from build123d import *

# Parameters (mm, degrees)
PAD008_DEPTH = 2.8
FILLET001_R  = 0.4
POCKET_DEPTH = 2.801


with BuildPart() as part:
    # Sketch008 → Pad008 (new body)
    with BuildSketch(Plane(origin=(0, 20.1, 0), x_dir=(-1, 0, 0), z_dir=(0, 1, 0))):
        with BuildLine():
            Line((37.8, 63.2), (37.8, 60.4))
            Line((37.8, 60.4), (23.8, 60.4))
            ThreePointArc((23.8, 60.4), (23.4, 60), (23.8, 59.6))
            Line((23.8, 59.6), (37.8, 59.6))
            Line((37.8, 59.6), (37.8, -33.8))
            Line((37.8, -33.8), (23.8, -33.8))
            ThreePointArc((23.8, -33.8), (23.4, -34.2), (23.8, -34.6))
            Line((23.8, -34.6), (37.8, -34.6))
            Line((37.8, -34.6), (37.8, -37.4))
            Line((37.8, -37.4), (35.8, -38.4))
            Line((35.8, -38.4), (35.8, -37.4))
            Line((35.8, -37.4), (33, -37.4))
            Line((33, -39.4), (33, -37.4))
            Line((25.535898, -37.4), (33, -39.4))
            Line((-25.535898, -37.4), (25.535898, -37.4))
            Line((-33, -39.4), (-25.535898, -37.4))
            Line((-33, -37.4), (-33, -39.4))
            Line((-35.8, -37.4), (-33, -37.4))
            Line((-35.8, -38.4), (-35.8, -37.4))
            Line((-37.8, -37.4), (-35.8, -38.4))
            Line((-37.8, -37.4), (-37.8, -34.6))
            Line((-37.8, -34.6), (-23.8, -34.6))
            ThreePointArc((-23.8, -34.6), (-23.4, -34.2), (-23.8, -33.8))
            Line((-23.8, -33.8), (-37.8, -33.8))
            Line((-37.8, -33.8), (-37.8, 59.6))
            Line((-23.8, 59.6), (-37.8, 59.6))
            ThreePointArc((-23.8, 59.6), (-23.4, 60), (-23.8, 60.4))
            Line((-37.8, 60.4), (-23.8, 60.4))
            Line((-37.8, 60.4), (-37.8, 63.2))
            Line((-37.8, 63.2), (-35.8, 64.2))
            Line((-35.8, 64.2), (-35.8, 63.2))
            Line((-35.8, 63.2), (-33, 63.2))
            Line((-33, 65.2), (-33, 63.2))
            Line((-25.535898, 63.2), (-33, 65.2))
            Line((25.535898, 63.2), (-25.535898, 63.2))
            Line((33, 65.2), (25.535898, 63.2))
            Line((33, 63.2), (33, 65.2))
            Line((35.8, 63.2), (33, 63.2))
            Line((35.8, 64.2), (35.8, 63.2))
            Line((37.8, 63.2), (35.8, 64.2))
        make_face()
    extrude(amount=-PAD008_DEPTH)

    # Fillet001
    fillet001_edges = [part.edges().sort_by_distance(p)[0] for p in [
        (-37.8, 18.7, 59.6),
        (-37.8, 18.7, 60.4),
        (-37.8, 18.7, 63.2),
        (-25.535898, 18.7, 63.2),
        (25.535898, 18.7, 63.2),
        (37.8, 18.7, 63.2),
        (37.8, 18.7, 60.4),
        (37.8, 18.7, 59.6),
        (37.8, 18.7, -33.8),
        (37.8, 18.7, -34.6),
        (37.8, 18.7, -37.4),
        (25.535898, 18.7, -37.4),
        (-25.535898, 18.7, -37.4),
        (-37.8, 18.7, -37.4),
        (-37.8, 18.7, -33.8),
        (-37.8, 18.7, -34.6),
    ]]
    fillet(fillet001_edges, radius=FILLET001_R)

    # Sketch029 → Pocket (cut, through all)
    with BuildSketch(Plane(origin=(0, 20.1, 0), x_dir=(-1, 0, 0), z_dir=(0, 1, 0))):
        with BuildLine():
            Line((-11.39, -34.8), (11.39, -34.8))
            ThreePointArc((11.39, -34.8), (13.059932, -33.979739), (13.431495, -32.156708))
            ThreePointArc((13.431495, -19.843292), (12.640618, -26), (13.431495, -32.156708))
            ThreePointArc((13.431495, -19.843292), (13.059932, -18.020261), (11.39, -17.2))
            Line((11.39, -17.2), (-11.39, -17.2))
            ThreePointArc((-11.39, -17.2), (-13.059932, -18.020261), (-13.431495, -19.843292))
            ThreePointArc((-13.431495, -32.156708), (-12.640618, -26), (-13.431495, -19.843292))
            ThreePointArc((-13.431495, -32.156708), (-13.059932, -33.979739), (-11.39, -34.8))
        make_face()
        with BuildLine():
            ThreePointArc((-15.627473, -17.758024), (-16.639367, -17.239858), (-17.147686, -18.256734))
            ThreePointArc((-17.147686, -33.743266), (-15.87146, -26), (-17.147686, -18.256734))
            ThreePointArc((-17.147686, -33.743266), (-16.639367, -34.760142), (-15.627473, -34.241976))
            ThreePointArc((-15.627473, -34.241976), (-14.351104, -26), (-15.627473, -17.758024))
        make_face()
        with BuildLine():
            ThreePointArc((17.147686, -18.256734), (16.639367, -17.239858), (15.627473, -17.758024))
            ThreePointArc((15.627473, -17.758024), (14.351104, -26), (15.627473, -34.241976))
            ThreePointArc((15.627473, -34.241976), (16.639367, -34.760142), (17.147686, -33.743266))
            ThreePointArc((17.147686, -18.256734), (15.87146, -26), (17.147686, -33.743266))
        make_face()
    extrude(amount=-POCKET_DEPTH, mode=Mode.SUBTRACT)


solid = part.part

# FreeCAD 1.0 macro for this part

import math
import FreeCAD as App
import Part
import Sketcher

V = App.Vector
Q = App.Units.Quantity


def edges_at(feature, points):
    """Names of the edges that pass closest to the given points."""
    edges = feature.Shape.Edges
    near = lambda p: min(range(len(edges)), key=lambda i: edges[i].distToShape(Part.Vertex(*p))[0])
    return sorted({f"Edge{near(p) + 1}" for p in points})

doc = App.newDocument("Part")
body = doc.addObject("PartDesign::Body", "Body")

# Sketch on XZ plane
sketch1 = doc.addObject("Sketcher::SketchObject", "Sketch")
body.addObject(sketch1)
sketch1.AttachmentSupport = (doc.XZ_Plane, [""])
sketch1.MapMode = "FlatFace"
sketch1.AttachmentOffset = App.Placement(V(0, 0, -20.1), App.Rotation())
sketch1.addGeometry(Part.LineSegment(V(-37.8, 60.4, 0), V(-37.8, 63.2, 0)), False)
sketch1.addGeometry(Part.LineSegment(V(-37.8, 63.2, 0), V(-35.8, 64.2, 0)), False)
sketch1.addGeometry(Part.LineSegment(V(-35.8, 64.2, 0), V(-35.8, 63.2, 0)), False)
sketch1.addGeometry(Part.LineSegment(V(-35.8, 63.2, 0), V(-33, 63.2, 0)), False)
sketch1.addGeometry(Part.LineSegment(V(-33, 63.2, 0), V(-33, 65.2, 0)), False)
sketch1.addGeometry(Part.LineSegment(V(-33, 65.2, 0), V(-25.54, 63.2, 0)), False)
sketch1.addGeometry(Part.LineSegment(V(-25.54, 63.2, 0), V(25.54, 63.2, 0)), False)
sketch1.addGeometry(Part.LineSegment(V(25.54, 63.2, 0), V(33, 65.2, 0)), False)
sketch1.addGeometry(Part.LineSegment(V(33, 65.2, 0), V(33, 63.2, 0)), False)
sketch1.addGeometry(Part.LineSegment(V(33, 63.2, 0), V(35.8, 63.2, 0)), False)
sketch1.addGeometry(Part.LineSegment(V(35.8, 63.2, 0), V(35.8, 64.2, 0)), False)
sketch1.addGeometry(Part.LineSegment(V(35.8, 64.2, 0), V(37.8, 63.2, 0)), False)
sketch1.addGeometry(Part.LineSegment(V(37.8, 63.2, 0), V(37.8, 60.4, 0)), False)
sketch1.addGeometry(Part.LineSegment(V(37.8, 60.4, 0), V(23.8, 60.4, 0)), False)
sketch1.addGeometry(Part.ArcOfCircle(Part.Circle(V(23.8, 60, 0), V(0, 0, 1), 0.4), math.radians(90), math.radians(270)), False)
sketch1.addGeometry(Part.LineSegment(V(23.8, 59.6, 0), V(37.8, 59.6, 0)), False)
sketch1.addGeometry(Part.LineSegment(V(37.8, 59.6, 0), V(37.8, -33.8, 0)), False)
sketch1.addGeometry(Part.LineSegment(V(37.8, -33.8, 0), V(23.8, -33.8, 0)), False)
sketch1.addGeometry(Part.ArcOfCircle(Part.Circle(V(23.8, -34.2, 0), V(0, 0, 1), 0.4), math.radians(90), math.radians(270)), False)
sketch1.addGeometry(Part.LineSegment(V(23.8, -34.6, 0), V(37.8, -34.6, 0)), False)
sketch1.addGeometry(Part.LineSegment(V(37.8, -34.6, 0), V(37.8, -37.4, 0)), False)
sketch1.addGeometry(Part.LineSegment(V(37.8, -37.4, 0), V(35.8, -38.4, 0)), False)
sketch1.addGeometry(Part.LineSegment(V(35.8, -38.4, 0), V(35.8, -37.4, 0)), False)
sketch1.addGeometry(Part.LineSegment(V(35.8, -37.4, 0), V(33, -37.4, 0)), False)
sketch1.addGeometry(Part.LineSegment(V(33, -37.4, 0), V(33, -39.4, 0)), False)
sketch1.addGeometry(Part.LineSegment(V(33, -39.4, 0), V(25.54, -37.4, 0)), False)
sketch1.addGeometry(Part.LineSegment(V(25.54, -37.4, 0), V(-25.54, -37.4, 0)), False)
sketch1.addGeometry(Part.LineSegment(V(-25.54, -37.4, 0), V(-33, -39.4, 0)), False)
sketch1.addGeometry(Part.LineSegment(V(-33, -39.4, 0), V(-33, -37.4, 0)), False)
sketch1.addGeometry(Part.LineSegment(V(-33, -37.4, 0), V(-35.8, -37.4, 0)), False)
sketch1.addGeometry(Part.LineSegment(V(-35.8, -37.4, 0), V(-35.8, -38.4, 0)), False)
sketch1.addGeometry(Part.LineSegment(V(-35.8, -38.4, 0), V(-37.8, -37.4, 0)), False)
sketch1.addGeometry(Part.LineSegment(V(-37.8, -37.4, 0), V(-37.8, -34.6, 0)), False)
sketch1.addGeometry(Part.LineSegment(V(-37.8, -34.6, 0), V(-23.8, -34.6, 0)), False)
sketch1.addGeometry(Part.ArcOfCircle(Part.Circle(V(-23.8, -34.2, 0), V(0, 0, 1), 0.4), math.radians(-90), math.radians(90)), False)
sketch1.addGeometry(Part.LineSegment(V(-23.8, -33.8, 0), V(-37.8, -33.8, 0)), False)
sketch1.addGeometry(Part.LineSegment(V(-37.8, -33.8, 0), V(-37.8, 59.6, 0)), False)
sketch1.addGeometry(Part.LineSegment(V(-37.8, 59.6, 0), V(-23.8, 59.6, 0)), False)
sketch1.addGeometry(Part.ArcOfCircle(Part.Circle(V(-23.8, 60, 0), V(0, 0, 1), 0.4), math.radians(-90), math.radians(90)), False)
sketch1.addGeometry(Part.LineSegment(V(-23.8, 60.4, 0), V(-37.8, 60.4, 0)), False)
sketch1.addConstraint(Sketcher.Constraint("Coincident", 0, 2, 1, 1))
sketch1.addConstraint(Sketcher.Constraint("Coincident", 1, 2, 2, 1))
sketch1.addConstraint(Sketcher.Constraint("Coincident", 2, 2, 3, 1))
sketch1.addConstraint(Sketcher.Constraint("Coincident", 3, 2, 4, 1))
sketch1.addConstraint(Sketcher.Constraint("Coincident", 4, 2, 5, 1))
sketch1.addConstraint(Sketcher.Constraint("Coincident", 5, 2, 6, 1))
sketch1.addConstraint(Sketcher.Constraint("Coincident", 6, 2, 7, 1))
sketch1.addConstraint(Sketcher.Constraint("Coincident", 7, 2, 8, 1))
sketch1.addConstraint(Sketcher.Constraint("Coincident", 8, 2, 9, 1))
sketch1.addConstraint(Sketcher.Constraint("Coincident", 9, 2, 10, 1))
sketch1.addConstraint(Sketcher.Constraint("Coincident", 10, 2, 11, 1))
sketch1.addConstraint(Sketcher.Constraint("Coincident", 11, 2, 12, 1))
sketch1.addConstraint(Sketcher.Constraint("Coincident", 12, 2, 13, 1))
sketch1.addConstraint(Sketcher.Constraint("Tangent", 13, 2, 14, 1))
sketch1.addConstraint(Sketcher.Constraint("Tangent", 14, 2, 15, 1))
sketch1.addConstraint(Sketcher.Constraint("Coincident", 15, 2, 16, 1))
sketch1.addConstraint(Sketcher.Constraint("Coincident", 16, 2, 17, 1))
sketch1.addConstraint(Sketcher.Constraint("Tangent", 17, 2, 18, 1))
sketch1.addConstraint(Sketcher.Constraint("Tangent", 18, 2, 19, 1))
sketch1.addConstraint(Sketcher.Constraint("Coincident", 19, 2, 20, 1))
sketch1.addConstraint(Sketcher.Constraint("Coincident", 20, 2, 21, 1))
sketch1.addConstraint(Sketcher.Constraint("Coincident", 21, 2, 22, 1))
sketch1.addConstraint(Sketcher.Constraint("Coincident", 22, 2, 23, 1))
sketch1.addConstraint(Sketcher.Constraint("Coincident", 23, 2, 24, 1))
sketch1.addConstraint(Sketcher.Constraint("Coincident", 24, 2, 25, 1))
sketch1.addConstraint(Sketcher.Constraint("Coincident", 25, 2, 26, 1))
sketch1.addConstraint(Sketcher.Constraint("Coincident", 26, 2, 27, 1))
sketch1.addConstraint(Sketcher.Constraint("Coincident", 27, 2, 28, 1))
sketch1.addConstraint(Sketcher.Constraint("Coincident", 28, 2, 29, 1))
sketch1.addConstraint(Sketcher.Constraint("Coincident", 29, 2, 30, 1))
sketch1.addConstraint(Sketcher.Constraint("Coincident", 30, 2, 31, 1))
sketch1.addConstraint(Sketcher.Constraint("Coincident", 31, 2, 32, 1))
sketch1.addConstraint(Sketcher.Constraint("Coincident", 32, 2, 33, 1))
sketch1.addConstraint(Sketcher.Constraint("Tangent", 33, 2, 34, 1))
sketch1.addConstraint(Sketcher.Constraint("Tangent", 34, 2, 35, 1))
sketch1.addConstraint(Sketcher.Constraint("Coincident", 35, 2, 36, 1))
sketch1.addConstraint(Sketcher.Constraint("Coincident", 36, 2, 37, 1))
sketch1.addConstraint(Sketcher.Constraint("Tangent", 37, 2, 38, 1))
sketch1.addConstraint(Sketcher.Constraint("Tangent", 38, 2, 39, 1))
sketch1.addConstraint(Sketcher.Constraint("Coincident", 39, 2, 0, 1))
sketch1.addConstraint(Sketcher.Constraint("Vertical", 0))
sketch1.addConstraint(Sketcher.Constraint("Vertical", 2))
sketch1.addConstraint(Sketcher.Constraint("Horizontal", 3))
sketch1.addConstraint(Sketcher.Constraint("Vertical", 4))
sketch1.addConstraint(Sketcher.Constraint("Horizontal", 6))
sketch1.addConstraint(Sketcher.Constraint("Vertical", 8))
sketch1.addConstraint(Sketcher.Constraint("Horizontal", 9))
sketch1.addConstraint(Sketcher.Constraint("Vertical", 10))
sketch1.addConstraint(Sketcher.Constraint("Vertical", 12))
sketch1.addConstraint(Sketcher.Constraint("Horizontal", 13))
sketch1.addConstraint(Sketcher.Constraint("Horizontal", 15))
sketch1.addConstraint(Sketcher.Constraint("Vertical", 16))
sketch1.addConstraint(Sketcher.Constraint("Horizontal", 17))
sketch1.addConstraint(Sketcher.Constraint("Horizontal", 19))
sketch1.addConstraint(Sketcher.Constraint("Vertical", 20))
sketch1.addConstraint(Sketcher.Constraint("Vertical", 22))
sketch1.addConstraint(Sketcher.Constraint("Horizontal", 23))
sketch1.addConstraint(Sketcher.Constraint("Vertical", 24))
sketch1.addConstraint(Sketcher.Constraint("Horizontal", 26))
sketch1.addConstraint(Sketcher.Constraint("Vertical", 28))
sketch1.addConstraint(Sketcher.Constraint("Horizontal", 29))
sketch1.addConstraint(Sketcher.Constraint("Vertical", 30))
sketch1.addConstraint(Sketcher.Constraint("Vertical", 32))
sketch1.addConstraint(Sketcher.Constraint("Horizontal", 33))
sketch1.addConstraint(Sketcher.Constraint("Horizontal", 35))
sketch1.addConstraint(Sketcher.Constraint("Vertical", 36))
sketch1.addConstraint(Sketcher.Constraint("Horizontal", 37))
sketch1.addConstraint(Sketcher.Constraint("Horizontal", 39))
sketch1.addConstraint(Sketcher.Constraint("Equal", 14, 18))
sketch1.addConstraint(Sketcher.Constraint("Equal", 18, 34))
sketch1.addConstraint(Sketcher.Constraint("Equal", 34, 38))
sketch1.addConstraint(Sketcher.Constraint("Symmetric", 18, 3, 34, 3, -2))
sketch1.addConstraint(Sketcher.Constraint("Symmetric", 14, 3, 38, 3, -2))
sketch1.addConstraint(Sketcher.Constraint("Symmetric", 4, 2, 7, 2, -2))
sketch1.addConstraint(Sketcher.Constraint("Symmetric", 2, 2, 9, 2, -2))
sketch1.addConstraint(Sketcher.Constraint("Symmetric", 0, 2, 11, 2, -2))
sketch1.addConstraint(Sketcher.Constraint("Symmetric", 24, 2, 27, 2, -2))
sketch1.addConstraint(Sketcher.Constraint("Symmetric", 22, 2, 29, 2, -2))
sketch1.addConstraint(Sketcher.Constraint("Symmetric", 20, 2, 31, 2, -2))
sketch1.addConstraint(Sketcher.Constraint("Parallel", 1, 21))
sketch1.addConstraint(Sketcher.Constraint("Parallel", 5, 25))
sketch1.addConstraint(Sketcher.Constraint("Parallel", 7, 27))
sketch1.addConstraint(Sketcher.Constraint("Parallel", 11, 31))
sketch1.addConstraint(Sketcher.Constraint("Horizontal", 0, 2, 2, 2))
sketch1.addConstraint(Sketcher.Constraint("Horizontal", 3, 2, 5, 2))
sketch1.addConstraint(Sketcher.Constraint("Horizontal", 1, 2, 10, 2))
sketch1.addConstraint(Sketcher.Constraint("Horizontal", 20, 2, 22, 2))
sketch1.addConstraint(Sketcher.Constraint("Horizontal", 23, 2, 25, 2))
sketch1.addConstraint(Sketcher.Constraint("Vertical", 14, 3, 18, 3))
sketch1.addConstraint(Sketcher.Constraint("Vertical", 12, 2, 15, 2))
sketch1.addConstraint(Sketcher.Constraint("Vertical", 16, 2, 19, 2))
sketch1.addConstraint(Sketcher.Constraint("Vertical", 10, 2, 21, 2))
sketch1.addConstraint(Sketcher.Constraint("Vertical", 8, 2, 23, 2))
sketch1.addConstraint(Sketcher.Constraint("Vertical", 6, 2, 25, 2))
sketch1.addConstraint(Sketcher.Constraint("Vertical", 5, 2, 26, 2))
sketch1.addConstraint(Sketcher.Constraint("Vertical", 32, 2, 35, 2))
sketch1.addConstraint(Sketcher.Constraint("Equal", 29, 0))
sketch1.addConstraint(Sketcher.Constraint("Equal", 12, 20))
sketch1.addConstraint(Sketcher.Constraint("Radius", 14, 0.4))
sketch1.addConstraint(Sketcher.Constraint("DistanceX", 13, 2, 13, 1, 14.0))
sketch1.addConstraint(Sketcher.Constraint("DistanceY", 2, 2, 2, 1, 1.0))
sketch1.addConstraint(Sketcher.Constraint("DistanceY", 4, 1, 4, 2, 2.0))
sketch1.addConstraint(Sketcher.Constraint("Angle", 5, Q("-14.999999 deg")))
sketch1.addConstraint(Sketcher.Constraint("DistanceX", 3, 1, 3, 2, 2.8))
sketch1.addConstraint(Sketcher.Constraint("DistanceY", 16, 2, 16, 1, 93.4))
sketch1.addConstraint(Sketcher.Constraint("DistanceY", -1, 1, 14, 3, 60.0))
sketch1.addConstraint(Sketcher.Constraint("DistanceX", 3, 2, -1, 1, 33.0))
sketch1.addConstraint(Sketcher.Constraint("DistanceX", 0, 2, 1, 2, 2.0))
pad1 = doc.addObject("PartDesign::Pad", "Pad")
body.addObject(pad1)
pad1.Profile = sketch1
pad1.Length = 2.8
doc.recompute()

fillet = doc.addObject("PartDesign::Fillet", "Fillet")
body.addObject(fillet)
fillet.Base = (pad1, edges_at(pad1, [
    (-37.8, 18.7, 59.6),
    (-37.8, 18.7, 60.4),
    (-37.8, 18.7, 63.2),
    (-25.536, 18.7, 63.2),
    (25.536, 18.7, 63.2),
    (37.8, 18.7, 63.2),
    (37.8, 18.7, 60.4),
    (37.8, 18.7, 59.6),
    (37.8, 18.7, -33.8),
    (37.8, 18.7, -34.6),
    (37.8, 18.7, -37.4),
    (25.536, 18.7, -37.4),
    (-25.536, 18.7, -37.4),
    (-37.8, 18.7, -37.4),
    (-37.8, 18.7, -33.8),
    (-37.8, 18.7, -34.6),
]))
fillet.Radius = 0.4

# Sketch on XZ plane
sketch2 = doc.addObject("Sketcher::SketchObject", "Sketch001")
body.addObject(sketch2)
sketch2.AttachmentSupport = (doc.XZ_Plane, [""])
sketch2.MapMode = "FlatFace"
sketch2.AttachmentOffset = App.Placement(V(0, 0, -20.1), App.Rotation())
sketch2.addGeometry(Part.LineSegment(V(11.4, -34.8, 0), V(-11.4, -34.8, 0)), False)
sketch2.addGeometry(Part.ArcOfCircle(Part.Circle(V(-11.4, -32.7, 0), V(0, 0, 1), 2.1), math.radians(165), math.radians(270)), False)
sketch2.addGeometry(Part.ArcOfCircle(Part.Circle(V(-37, -26, 0), V(0, 0, 1), 24.4), math.radians(-15), math.radians(15)), False)
sketch2.addGeometry(Part.ArcOfCircle(Part.Circle(V(-11.4, -19.3, 0), V(0, 0, 1), 2.1), math.radians(90), math.radians(195)), False)
sketch2.addGeometry(Part.LineSegment(V(-11.4, -17.2, 0), V(11.4, -17.2, 0)), False)
sketch2.addGeometry(Part.ArcOfCircle(Part.Circle(V(11.4, -19.3, 0), V(0, 0, 1), 2.1), math.radians(-15), math.radians(90)), False)
sketch2.addGeometry(Part.ArcOfCircle(Part.Circle(V(37, -26, 0), V(0, 0, 1), 24.4), math.radians(165), math.radians(195)), False)
sketch2.addGeometry(Part.ArcOfCircle(Part.Circle(V(11.4, -32.7, 0), V(0, 0, 1), 2.1), math.radians(-90), math.radians(15)), False)
sketch2.addGeometry(Part.ArcOfCircle(Part.Circle(V(16.4, -18, 0), V(0, 0, 1), 0.8), math.radians(-19), math.radians(162)), False)
sketch2.addGeometry(Part.ArcOfCircle(Part.Circle(V(40, -26, 0), V(0, 0, 1), 24.1), math.radians(161), math.radians(199)), False)
sketch2.addGeometry(Part.ArcOfCircle(Part.Circle(V(16.4, -34, 0), V(0, 0, 1), 0.8), math.radians(-162), math.radians(19)), False)
sketch2.addGeometry(Part.ArcOfCircle(Part.Circle(V(41.6, -26, 0), V(0, 0, 1), 27.2), math.radians(162), math.radians(198)), False)
sketch2.addGeometry(Part.ArcOfCircle(Part.Circle(V(-16.4, -18, 0), V(0, 0, 1), 0.8), math.radians(18), math.radians(199)), False)
sketch2.addGeometry(Part.ArcOfCircle(Part.Circle(V(-41.6, -26, 0), V(0, 0, 1), 27.2), math.radians(-18), math.radians(18)), False)
sketch2.addGeometry(Part.ArcOfCircle(Part.Circle(V(-16.4, -34, 0), V(0, 0, 1), 0.8), math.radians(161), math.radians(342)), False)
sketch2.addGeometry(Part.ArcOfCircle(Part.Circle(V(-40, -26, 0), V(0, 0, 1), 24.1), math.radians(-19), math.radians(19)), False)
sketch2.addConstraint(Sketcher.Constraint("Tangent", 0, 2, 1, 2))
sketch2.addConstraint(Sketcher.Constraint("Tangent", 1, 1, 2, 1))
sketch2.addConstraint(Sketcher.Constraint("Tangent", 2, 2, 3, 2))
sketch2.addConstraint(Sketcher.Constraint("Tangent", 3, 1, 4, 1))
sketch2.addConstraint(Sketcher.Constraint("Tangent", 4, 2, 5, 2))
sketch2.addConstraint(Sketcher.Constraint("Tangent", 5, 1, 6, 1))
sketch2.addConstraint(Sketcher.Constraint("Tangent", 6, 2, 7, 2))
sketch2.addConstraint(Sketcher.Constraint("Tangent", 7, 1, 0, 1))
sketch2.addConstraint(Sketcher.Constraint("Tangent", 8, 1, 9, 1))
sketch2.addConstraint(Sketcher.Constraint("Tangent", 9, 2, 10, 2))
sketch2.addConstraint(Sketcher.Constraint("Tangent", 10, 1, 11, 2))
sketch2.addConstraint(Sketcher.Constraint("Tangent", 11, 1, 8, 2))
sketch2.addConstraint(Sketcher.Constraint("Tangent", 12, 1, 13, 2))
sketch2.addConstraint(Sketcher.Constraint("Tangent", 13, 1, 14, 2))
sketch2.addConstraint(Sketcher.Constraint("Tangent", 14, 1, 15, 1))
sketch2.addConstraint(Sketcher.Constraint("Tangent", 15, 2, 12, 2))
sketch2.addConstraint(Sketcher.Constraint("Horizontal", 0))
sketch2.addConstraint(Sketcher.Constraint("Horizontal", 4))
sketch2.addConstraint(Sketcher.Constraint("Equal", 1, 3))
sketch2.addConstraint(Sketcher.Constraint("Equal", 3, 5))
sketch2.addConstraint(Sketcher.Constraint("Equal", 2, 6))
sketch2.addConstraint(Sketcher.Constraint("Equal", 5, 7))
sketch2.addConstraint(Sketcher.Constraint("Equal", 8, 10))
sketch2.addConstraint(Sketcher.Constraint("Equal", 10, 12))
sketch2.addConstraint(Sketcher.Constraint("Equal", 11, 13))
sketch2.addConstraint(Sketcher.Constraint("Equal", 12, 14))
sketch2.addConstraint(Sketcher.Constraint("Equal", 9, 15))
sketch2.addConstraint(Sketcher.Constraint("Symmetric", 2, 3, 6, 3, -2))
sketch2.addConstraint(Sketcher.Constraint("Symmetric", 8, 3, 12, 3, -2))
sketch2.addConstraint(Sketcher.Constraint("Symmetric", 10, 3, 14, 3, -2))
sketch2.addConstraint(Sketcher.Constraint("Horizontal", 6, 3, 9, 3))
sketch2.addConstraint(Sketcher.Constraint("Horizontal", 9, 3, 11, 3))
sketch2.addConstraint(Sketcher.Constraint("Vertical", 1, 3, 3, 3))
sketch2.addConstraint(Sketcher.Constraint("Radius", 8, 0.8))
sketch2.addConstraint(Sketcher.Constraint("Radius", 1, 2.110001))
sketch2.addConstraint(Sketcher.Constraint("DistanceY", 2, 3, -1, 1, 26.0))
sketch2.addConstraint(Sketcher.Constraint("DistanceY", 8, 3, -1, 1, 18.0))
sketch2.addConstraint(Sketcher.Constraint("DistanceX", 5, 3, 8, 3, 5.000001))
sketch2.addConstraint(Sketcher.Constraint("DistanceX", 6, 3, 9, 3, 2.999999))
sketch2.addConstraint(Sketcher.Constraint("DistanceX", 0, 2, 0, 1, 22.78))
sketch2.addConstraint(Sketcher.Constraint("DistanceY", 0, 2, -1, 1, 34.8))
sketch2.addConstraint(Sketcher.Constraint("DistanceX", 5, 3, 11, 3, 30.209998))
sketch2.addConstraint(Sketcher.Constraint("Radius", 2, 24.359376))
pocket1 = doc.addObject("PartDesign::Pocket", "Pocket")
body.addObject(pocket1)
pocket1.Profile = sketch2
pocket1.Type = "ThroughAll"
pocket1.Reversed = True

doc.recompute()
